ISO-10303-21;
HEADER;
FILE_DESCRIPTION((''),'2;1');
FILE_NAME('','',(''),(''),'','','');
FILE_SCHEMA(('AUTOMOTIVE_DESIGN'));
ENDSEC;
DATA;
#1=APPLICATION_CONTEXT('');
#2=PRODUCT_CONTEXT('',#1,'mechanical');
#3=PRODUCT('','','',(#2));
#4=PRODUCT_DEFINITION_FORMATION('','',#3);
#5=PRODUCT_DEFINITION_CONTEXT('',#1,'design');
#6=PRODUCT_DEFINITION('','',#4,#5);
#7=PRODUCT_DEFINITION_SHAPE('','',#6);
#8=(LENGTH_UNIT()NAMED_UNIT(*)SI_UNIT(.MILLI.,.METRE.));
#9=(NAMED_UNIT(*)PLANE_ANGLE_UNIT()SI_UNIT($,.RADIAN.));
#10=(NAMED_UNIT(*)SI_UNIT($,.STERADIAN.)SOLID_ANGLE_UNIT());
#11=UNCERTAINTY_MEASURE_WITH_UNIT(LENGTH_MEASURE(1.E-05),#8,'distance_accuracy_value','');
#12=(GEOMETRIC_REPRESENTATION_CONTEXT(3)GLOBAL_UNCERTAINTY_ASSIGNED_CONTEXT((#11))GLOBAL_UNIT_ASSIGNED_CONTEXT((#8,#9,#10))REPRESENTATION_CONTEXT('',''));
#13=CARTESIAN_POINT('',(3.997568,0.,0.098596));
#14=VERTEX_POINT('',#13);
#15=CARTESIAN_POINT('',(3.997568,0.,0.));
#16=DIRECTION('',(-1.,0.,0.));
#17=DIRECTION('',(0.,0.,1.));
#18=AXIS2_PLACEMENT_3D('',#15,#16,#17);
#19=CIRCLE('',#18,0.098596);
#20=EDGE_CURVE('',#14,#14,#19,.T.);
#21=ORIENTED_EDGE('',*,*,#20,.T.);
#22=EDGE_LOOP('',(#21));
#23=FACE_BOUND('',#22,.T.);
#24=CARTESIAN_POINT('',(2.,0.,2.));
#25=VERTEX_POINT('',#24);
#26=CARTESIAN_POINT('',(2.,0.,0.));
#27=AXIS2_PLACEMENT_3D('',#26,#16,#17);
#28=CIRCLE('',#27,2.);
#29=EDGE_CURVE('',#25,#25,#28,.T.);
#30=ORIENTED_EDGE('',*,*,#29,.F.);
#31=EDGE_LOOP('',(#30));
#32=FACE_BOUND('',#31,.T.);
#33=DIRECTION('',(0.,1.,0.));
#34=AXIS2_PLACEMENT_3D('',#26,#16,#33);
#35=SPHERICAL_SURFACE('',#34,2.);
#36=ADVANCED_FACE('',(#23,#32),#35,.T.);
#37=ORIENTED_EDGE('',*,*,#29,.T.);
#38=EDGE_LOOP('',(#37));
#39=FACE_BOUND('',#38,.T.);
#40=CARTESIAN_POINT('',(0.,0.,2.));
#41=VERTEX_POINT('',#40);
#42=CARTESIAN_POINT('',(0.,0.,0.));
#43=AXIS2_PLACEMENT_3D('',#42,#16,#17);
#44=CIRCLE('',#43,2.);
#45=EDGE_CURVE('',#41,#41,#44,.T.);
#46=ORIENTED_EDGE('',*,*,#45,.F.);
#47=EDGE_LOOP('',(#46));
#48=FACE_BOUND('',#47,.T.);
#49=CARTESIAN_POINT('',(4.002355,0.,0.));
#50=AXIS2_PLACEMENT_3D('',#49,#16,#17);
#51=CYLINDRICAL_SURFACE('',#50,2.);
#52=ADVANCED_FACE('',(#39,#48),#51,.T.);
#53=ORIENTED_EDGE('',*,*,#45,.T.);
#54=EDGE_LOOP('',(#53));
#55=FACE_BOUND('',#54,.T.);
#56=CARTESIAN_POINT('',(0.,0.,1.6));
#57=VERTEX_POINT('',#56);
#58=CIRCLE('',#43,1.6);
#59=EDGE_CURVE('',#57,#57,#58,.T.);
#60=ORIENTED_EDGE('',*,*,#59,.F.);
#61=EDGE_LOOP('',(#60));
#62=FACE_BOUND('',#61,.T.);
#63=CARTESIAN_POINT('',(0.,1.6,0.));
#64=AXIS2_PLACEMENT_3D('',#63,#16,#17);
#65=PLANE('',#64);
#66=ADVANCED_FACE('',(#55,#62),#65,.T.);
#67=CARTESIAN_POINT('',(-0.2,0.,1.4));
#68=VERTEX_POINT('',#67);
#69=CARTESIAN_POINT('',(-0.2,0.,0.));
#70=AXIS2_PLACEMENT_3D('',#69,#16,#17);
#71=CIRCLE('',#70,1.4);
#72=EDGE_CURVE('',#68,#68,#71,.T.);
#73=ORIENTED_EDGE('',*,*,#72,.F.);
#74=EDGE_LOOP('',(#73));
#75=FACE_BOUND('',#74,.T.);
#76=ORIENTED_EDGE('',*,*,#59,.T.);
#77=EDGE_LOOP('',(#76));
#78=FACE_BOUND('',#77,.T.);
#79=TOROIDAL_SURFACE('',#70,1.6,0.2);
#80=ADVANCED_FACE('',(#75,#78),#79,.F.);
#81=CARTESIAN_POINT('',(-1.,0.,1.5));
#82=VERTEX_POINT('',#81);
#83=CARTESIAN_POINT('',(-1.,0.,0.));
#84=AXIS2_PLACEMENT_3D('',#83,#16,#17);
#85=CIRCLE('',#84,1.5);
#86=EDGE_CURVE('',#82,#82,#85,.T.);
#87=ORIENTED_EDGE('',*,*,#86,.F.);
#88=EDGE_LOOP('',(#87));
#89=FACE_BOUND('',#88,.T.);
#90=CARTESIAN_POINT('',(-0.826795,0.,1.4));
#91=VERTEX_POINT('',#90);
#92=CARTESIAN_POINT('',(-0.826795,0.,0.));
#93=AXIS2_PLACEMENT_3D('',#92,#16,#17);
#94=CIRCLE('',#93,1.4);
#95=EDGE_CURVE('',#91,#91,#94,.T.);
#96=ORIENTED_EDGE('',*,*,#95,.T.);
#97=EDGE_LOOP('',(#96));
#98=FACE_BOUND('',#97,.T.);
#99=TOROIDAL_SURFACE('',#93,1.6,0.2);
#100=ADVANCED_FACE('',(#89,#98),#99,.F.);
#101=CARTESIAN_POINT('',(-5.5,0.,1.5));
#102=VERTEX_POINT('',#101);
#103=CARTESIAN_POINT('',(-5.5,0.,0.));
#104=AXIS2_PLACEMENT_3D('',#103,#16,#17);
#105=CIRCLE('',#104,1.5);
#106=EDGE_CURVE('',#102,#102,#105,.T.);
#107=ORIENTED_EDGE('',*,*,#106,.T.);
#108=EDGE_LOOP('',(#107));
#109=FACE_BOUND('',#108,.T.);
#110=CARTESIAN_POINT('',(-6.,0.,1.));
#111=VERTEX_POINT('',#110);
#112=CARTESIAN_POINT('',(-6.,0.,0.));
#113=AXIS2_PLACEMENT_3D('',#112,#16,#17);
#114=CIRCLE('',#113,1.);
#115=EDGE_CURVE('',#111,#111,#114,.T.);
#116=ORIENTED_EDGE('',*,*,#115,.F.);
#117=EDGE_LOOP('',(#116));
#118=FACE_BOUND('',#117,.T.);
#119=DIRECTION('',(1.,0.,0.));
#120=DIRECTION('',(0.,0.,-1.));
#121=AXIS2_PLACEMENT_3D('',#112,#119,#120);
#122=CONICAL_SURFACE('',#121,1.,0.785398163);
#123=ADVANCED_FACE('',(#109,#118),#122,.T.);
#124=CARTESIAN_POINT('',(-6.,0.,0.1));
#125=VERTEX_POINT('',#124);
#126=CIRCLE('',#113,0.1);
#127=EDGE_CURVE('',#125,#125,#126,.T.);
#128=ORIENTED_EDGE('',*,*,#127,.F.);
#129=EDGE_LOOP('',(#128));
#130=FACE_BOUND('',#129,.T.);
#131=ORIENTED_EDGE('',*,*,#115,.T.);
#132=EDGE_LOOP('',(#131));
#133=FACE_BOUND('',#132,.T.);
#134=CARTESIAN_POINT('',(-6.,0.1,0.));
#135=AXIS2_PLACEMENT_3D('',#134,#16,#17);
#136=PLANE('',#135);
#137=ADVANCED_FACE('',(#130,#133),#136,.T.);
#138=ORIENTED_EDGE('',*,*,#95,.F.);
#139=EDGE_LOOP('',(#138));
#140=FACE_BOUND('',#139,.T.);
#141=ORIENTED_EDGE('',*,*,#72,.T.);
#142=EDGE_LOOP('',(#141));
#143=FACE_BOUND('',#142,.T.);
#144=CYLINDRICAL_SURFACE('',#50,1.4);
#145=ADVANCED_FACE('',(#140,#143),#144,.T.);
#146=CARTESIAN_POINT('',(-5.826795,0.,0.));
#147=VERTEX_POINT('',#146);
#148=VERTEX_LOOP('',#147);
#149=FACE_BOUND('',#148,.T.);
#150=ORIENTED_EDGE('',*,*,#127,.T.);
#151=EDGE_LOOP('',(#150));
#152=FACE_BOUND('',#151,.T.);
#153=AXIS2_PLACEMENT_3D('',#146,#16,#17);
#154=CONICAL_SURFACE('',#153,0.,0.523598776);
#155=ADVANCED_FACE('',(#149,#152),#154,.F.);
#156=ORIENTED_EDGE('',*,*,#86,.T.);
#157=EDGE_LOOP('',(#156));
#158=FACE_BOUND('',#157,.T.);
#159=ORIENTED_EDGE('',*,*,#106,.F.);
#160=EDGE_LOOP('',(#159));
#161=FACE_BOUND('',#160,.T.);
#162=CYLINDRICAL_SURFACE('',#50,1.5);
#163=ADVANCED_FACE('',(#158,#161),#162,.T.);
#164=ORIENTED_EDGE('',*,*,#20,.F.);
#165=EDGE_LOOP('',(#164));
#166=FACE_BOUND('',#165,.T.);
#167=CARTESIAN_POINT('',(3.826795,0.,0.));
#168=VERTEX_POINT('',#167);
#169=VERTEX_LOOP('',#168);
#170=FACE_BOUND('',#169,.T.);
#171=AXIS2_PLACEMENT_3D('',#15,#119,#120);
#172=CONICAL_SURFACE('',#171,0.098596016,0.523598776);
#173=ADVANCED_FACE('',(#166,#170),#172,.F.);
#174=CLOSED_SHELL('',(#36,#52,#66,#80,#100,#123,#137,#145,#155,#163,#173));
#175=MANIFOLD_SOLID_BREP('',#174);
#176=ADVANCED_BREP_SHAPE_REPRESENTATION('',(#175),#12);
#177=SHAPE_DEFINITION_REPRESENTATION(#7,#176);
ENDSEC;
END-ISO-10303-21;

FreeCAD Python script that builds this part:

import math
import FreeCAD as App
import Part
import Sketcher
Q = App.Units.Quantity

doc = App.newDocument("Part")
params = doc.addObject("Spreadsheet::Sheet", "Params")
for row, (alias, value) in enumerate([
    ("sketch1_radius", "2 mm"),
    ("sketch1_radius2", "0.2 mm"),
    ("sketch1_width", "2 mm"),
    ("sketch1_width2", "4.5 mm"),
    ("sketch1_height", "0.9 mm"),
    ("revolution_angle", "360 deg"),
], start=1):
    params.set(f"A{row}", alias)
    params.set(f"B{row}", "=" + value)
    params.setAlias(f"B{row}", alias)

body = doc.addObject("PartDesign::Body", "Body")

sketch1 = doc.addObject("Sketcher::SketchObject", "Sketch")
body.addObject(sketch1)
sketch1.AttachmentSupport = (doc.XY_Plane, [""])
sketch1.MapMode = "FlatFace"
sketch1.addGeometry([
    Part.LineSegment(App.Vector(3.997568, 0.098596, 0), App.Vector(3.826795, 0, 0)),
    Part.LineSegment(App.Vector(3.826795, 0, 0), App.Vector(-5.826795, 0, 0)),
    Part.LineSegment(App.Vector(-5.826795, 0, 0), App.Vector(-6, 0.1, 0)),
    Part.LineSegment(App.Vector(-6, 0.1, 0), App.Vector(-6, 1, 0)),
    Part.LineSegment(App.Vector(-6, 1, 0), App.Vector(-5.5, 1.5, 0)),
    Part.LineSegment(App.Vector(-5.5, 1.5, 0), App.Vector(-1, 1.5, 0)),
    Part.ArcOfCircle(Part.Circle(App.Vector(-0.826795, 1.6, 0), App.Vector(0, 0, 1), 0.2), math.radians(-150), math.radians(-90)),
    Part.LineSegment(App.Vector(-0.826795, 1.4, 0), App.Vector(-0.2, 1.4, 0)),
    Part.ArcOfCircle(Part.Circle(App.Vector(-0.2, 1.6, 0), App.Vector(0, 0, 1), 0.2), math.radians(-90), math.radians(0)),
    Part.LineSegment(App.Vector(0, 1.6, 0), App.Vector(0, 2, 0)),
    Part.LineSegment(App.Vector(0, 2, 0), App.Vector(2, 2, 0)),
    Part.ArcOfCircle(Part.Circle(App.Vector(2, 0, 0), App.Vector(0, 0, 1), 2), math.radians(2.825713), math.radians(90)),
], False)
sketch1.addConstraint([
    Sketcher.Constraint("Coincident", 0, 2, 1, 1),
    Sketcher.Constraint("Coincident", 1, 2, 2, 1),
    Sketcher.Constraint("Coincident", 2, 2, 3, 1),
    Sketcher.Constraint("Coincident", 3, 2, 4, 1),
    Sketcher.Constraint("Coincident", 4, 2, 5, 1),
    Sketcher.Constraint("Coincident", 5, 2, 6, 1),
    Sketcher.Constraint("Tangent", 6, 2, 7, 1),
    Sketcher.Constraint("Tangent", 7, 2, 8, 1),
    Sketcher.Constraint("Tangent", 8, 2, 9, 1),
    Sketcher.Constraint("Coincident", 9, 2, 10, 1),
    Sketcher.Constraint("Tangent", 10, 2, 11, 2),
    Sketcher.Constraint("Coincident", 11, 1, 0, 1),
    Sketcher.Constraint("Horizontal", 1),
    Sketcher.Constraint("Vertical", 3),
    Sketcher.Constraint("Horizontal", 5),
    Sketcher.Constraint("Horizontal", 7),
    Sketcher.Constraint("Vertical", 9),
    Sketcher.Constraint("Horizontal", 10),
    Sketcher.Constraint("Equal", 6, 8),
    Sketcher.Constraint("PointOnObject", 11, 3, -1),
    Sketcher.Constraint("PointOnObject", 0, 2, -1),
    Sketcher.Constraint("PointOnObject", 8, 2, -2),
    Sketcher.Constraint("Radius", 11, Q("2 mm")),
    Sketcher.Constraint("Radius", 6, Q("0.2 mm")),
    Sketcher.Constraint("DistanceX", 10, 1, 10, 2, Q("2 mm")),
    Sketcher.Constraint("Angle", 0, Q("-150 deg")),
    Sketcher.Constraint("Angle", 2, Q("150 deg")),
    Sketcher.Constraint("Angle", 4, Q("45 deg")),
    Sketcher.Constraint("DistanceX", 5, 1, 5, 2, Q("4.5 mm")),
    Sketcher.Constraint("DistanceY", 3, 1, 3, 2, Q("0.9 mm")),
    Sketcher.Constraint("DistanceY", 9, 1, 9, 2, Q("0.4 mm")),
    Sketcher.Constraint("DistanceX", 2, 2, -1, 1, Q("6 mm")),
    Sketcher.Constraint("DistanceY", -1, 1, 3, 2, Q("1 mm")),
    Sketcher.Constraint("DistanceX", 5, 2, -1, 1, Q("1 mm")),
    Sketcher.Constraint("DistanceX", 1, 2, 1, 1, Q("9.65359 mm")),
])
sketch1.setExpression("Constraints[22]", "Params.sketch1_radius")
sketch1.setExpression("Constraints[23]", "Params.sketch1_radius2")
sketch1.setExpression("Constraints[24]", "Params.sketch1_width")
sketch1.setExpression("Constraints[28]", "Params.sketch1_width2")
sketch1.setExpression("Constraints[29]", "Params.sketch1_height")
revolution = doc.addObject("PartDesign::Revolution", "Revolution")
body.addObject(revolution)
revolution.Profile = sketch1
revolution.ReferenceAxis = (sketch1, ["H_Axis"])
revolution.setExpression("Angle", "Params.revolution_angle")

doc.recompute()
